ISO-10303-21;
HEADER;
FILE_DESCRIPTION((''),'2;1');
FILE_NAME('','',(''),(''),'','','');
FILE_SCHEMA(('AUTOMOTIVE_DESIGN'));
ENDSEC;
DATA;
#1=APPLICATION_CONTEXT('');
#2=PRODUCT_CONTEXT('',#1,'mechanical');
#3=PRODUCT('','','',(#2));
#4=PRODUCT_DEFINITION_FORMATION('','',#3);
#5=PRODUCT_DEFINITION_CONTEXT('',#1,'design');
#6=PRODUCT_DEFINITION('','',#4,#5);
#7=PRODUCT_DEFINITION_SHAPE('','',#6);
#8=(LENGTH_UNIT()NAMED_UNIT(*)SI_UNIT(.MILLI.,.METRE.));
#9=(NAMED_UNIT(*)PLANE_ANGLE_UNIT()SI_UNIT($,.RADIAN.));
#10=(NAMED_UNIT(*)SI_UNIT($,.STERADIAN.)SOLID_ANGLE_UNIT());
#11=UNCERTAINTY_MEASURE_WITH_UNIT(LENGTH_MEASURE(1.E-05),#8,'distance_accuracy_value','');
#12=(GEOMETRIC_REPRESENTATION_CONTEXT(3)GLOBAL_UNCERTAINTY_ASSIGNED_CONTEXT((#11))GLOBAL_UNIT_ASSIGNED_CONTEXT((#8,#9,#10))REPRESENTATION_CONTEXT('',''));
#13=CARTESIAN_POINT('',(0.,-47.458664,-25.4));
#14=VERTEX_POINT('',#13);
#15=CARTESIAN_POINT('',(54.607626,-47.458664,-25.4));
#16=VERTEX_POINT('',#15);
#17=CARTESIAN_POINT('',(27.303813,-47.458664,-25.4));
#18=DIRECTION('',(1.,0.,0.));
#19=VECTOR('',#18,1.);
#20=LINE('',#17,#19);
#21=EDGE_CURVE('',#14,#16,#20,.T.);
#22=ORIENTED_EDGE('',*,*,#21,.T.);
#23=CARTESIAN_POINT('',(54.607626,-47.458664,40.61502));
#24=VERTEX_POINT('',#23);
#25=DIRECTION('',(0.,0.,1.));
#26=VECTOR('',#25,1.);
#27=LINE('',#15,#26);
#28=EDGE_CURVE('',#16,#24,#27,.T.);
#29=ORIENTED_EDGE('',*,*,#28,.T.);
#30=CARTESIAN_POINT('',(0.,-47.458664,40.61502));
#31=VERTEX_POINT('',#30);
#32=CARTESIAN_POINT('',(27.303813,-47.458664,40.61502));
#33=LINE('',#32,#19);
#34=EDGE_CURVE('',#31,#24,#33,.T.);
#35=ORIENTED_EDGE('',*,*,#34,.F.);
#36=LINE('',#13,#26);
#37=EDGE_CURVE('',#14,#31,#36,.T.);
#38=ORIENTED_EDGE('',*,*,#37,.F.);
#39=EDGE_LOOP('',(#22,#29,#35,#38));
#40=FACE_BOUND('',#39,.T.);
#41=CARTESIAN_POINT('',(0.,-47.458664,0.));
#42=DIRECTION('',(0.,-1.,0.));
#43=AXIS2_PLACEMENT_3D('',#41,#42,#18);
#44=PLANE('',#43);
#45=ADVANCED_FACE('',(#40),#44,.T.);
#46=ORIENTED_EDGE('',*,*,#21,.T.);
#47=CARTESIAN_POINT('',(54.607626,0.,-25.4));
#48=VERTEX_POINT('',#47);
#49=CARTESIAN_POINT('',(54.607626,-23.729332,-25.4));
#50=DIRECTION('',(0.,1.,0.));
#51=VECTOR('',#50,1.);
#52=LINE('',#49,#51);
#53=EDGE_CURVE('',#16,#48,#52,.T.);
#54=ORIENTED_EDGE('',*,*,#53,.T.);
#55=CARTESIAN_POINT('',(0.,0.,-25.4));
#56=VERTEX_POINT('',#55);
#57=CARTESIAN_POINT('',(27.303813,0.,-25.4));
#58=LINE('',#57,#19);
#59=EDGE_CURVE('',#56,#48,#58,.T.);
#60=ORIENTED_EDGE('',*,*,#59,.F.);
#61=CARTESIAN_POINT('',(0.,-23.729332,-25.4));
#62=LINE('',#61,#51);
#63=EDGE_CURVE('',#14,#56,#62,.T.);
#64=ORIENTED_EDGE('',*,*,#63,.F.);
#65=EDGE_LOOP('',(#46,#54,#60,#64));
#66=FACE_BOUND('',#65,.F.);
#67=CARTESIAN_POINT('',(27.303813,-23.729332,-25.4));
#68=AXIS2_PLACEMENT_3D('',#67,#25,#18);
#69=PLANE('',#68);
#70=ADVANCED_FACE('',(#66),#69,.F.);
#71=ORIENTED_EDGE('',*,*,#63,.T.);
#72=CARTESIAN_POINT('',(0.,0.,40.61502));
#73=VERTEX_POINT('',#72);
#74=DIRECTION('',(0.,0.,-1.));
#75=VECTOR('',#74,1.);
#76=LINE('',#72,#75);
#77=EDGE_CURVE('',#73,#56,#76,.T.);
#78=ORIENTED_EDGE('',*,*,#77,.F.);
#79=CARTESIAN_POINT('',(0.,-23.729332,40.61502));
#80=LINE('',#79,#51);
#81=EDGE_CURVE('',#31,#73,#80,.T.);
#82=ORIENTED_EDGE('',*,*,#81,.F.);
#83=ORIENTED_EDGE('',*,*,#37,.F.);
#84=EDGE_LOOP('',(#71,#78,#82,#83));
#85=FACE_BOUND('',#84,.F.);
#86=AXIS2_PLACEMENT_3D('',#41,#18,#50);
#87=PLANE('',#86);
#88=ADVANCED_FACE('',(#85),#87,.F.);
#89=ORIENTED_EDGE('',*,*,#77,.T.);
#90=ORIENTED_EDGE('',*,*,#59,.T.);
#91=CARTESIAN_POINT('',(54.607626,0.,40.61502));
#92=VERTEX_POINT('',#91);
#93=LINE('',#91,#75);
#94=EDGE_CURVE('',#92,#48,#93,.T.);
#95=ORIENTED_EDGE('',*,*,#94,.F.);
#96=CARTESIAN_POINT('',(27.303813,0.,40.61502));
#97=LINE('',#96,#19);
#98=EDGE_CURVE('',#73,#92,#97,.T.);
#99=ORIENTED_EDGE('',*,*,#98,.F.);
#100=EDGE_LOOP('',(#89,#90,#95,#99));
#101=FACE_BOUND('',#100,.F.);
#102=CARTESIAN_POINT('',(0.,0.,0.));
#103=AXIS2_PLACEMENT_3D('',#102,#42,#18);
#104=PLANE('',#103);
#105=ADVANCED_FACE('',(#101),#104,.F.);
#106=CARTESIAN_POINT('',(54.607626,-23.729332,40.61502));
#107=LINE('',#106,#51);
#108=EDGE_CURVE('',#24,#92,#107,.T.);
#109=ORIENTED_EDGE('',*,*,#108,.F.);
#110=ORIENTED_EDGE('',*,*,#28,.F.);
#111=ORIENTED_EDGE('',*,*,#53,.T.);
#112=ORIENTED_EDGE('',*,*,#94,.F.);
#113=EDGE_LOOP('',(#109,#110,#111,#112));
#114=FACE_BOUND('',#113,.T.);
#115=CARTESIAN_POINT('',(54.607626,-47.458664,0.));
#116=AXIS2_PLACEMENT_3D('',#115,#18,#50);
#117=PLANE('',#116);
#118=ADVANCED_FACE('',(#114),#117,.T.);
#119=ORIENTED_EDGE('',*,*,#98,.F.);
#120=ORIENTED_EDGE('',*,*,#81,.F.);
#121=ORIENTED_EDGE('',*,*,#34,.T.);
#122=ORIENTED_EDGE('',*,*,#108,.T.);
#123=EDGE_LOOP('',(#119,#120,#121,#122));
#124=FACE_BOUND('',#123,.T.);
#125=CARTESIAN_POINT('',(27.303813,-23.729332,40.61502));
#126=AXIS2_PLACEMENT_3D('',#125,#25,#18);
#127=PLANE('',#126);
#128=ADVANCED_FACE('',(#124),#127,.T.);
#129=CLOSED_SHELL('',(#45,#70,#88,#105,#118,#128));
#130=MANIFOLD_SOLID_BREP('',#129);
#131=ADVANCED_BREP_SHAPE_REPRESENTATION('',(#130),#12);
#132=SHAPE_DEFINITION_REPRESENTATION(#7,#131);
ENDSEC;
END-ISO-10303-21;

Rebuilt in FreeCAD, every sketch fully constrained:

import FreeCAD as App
import Part
import Sketcher
from FreeCAD import Vector


def add_polygon(sketch, points):
    """Adds a closed chain of lines whose ends are joined by coincident constraints."""
    first, n = sketch.GeometryCount, len(points)
    for a, b in zip(points, points[1:] + points[:1]):
        sketch.addGeometry(Part.LineSegment(App.Vector(*a, 0), App.Vector(*b, 0)), False)
    for i in range(n):
        sketch.addConstraint(Sketcher.Constraint("Coincident", first + i, 2, first + (i + 1) % n, 1))

doc = App.newDocument("Part")
body = doc.addObject("PartDesign::Body", "Body")

# Sketch on XY plane
sketch1 = doc.addObject("Sketcher::SketchObject", "Sketch")
body.addObject(sketch1)
sketch1.AttachmentSupport = (doc.XY_Plane, [""])
sketch1.MapMode = "FlatFace"
add_polygon(sketch1, [(0, 0), (0, -47), (55, -47), (55, 0)])  # lines 0-3
sketch1.addConstraint([
    Sketcher.Constraint("Vertical", 0),
    Sketcher.Constraint("Horizontal", 1),
    Sketcher.Constraint("Vertical", 2),
    Sketcher.Constraint("Horizontal", 3),
    Sketcher.Constraint("Coincident", 3, 2, -1, 1),
    Sketcher.Constraint("DistanceX", 1, 1, 1, 2, 54.607626),
    Sketcher.Constraint("DistanceY", 0, 2, 0, 1, 47.458664),
])
pad1 = doc.addObject("PartDesign::Pad", "Pad")
body.addObject(pad1)
pad1.Profile = sketch1
pad1.Type = "TwoLengths"
pad1.Length = 40.61502
pad1.Length2 = 25.4

doc.recompute()
